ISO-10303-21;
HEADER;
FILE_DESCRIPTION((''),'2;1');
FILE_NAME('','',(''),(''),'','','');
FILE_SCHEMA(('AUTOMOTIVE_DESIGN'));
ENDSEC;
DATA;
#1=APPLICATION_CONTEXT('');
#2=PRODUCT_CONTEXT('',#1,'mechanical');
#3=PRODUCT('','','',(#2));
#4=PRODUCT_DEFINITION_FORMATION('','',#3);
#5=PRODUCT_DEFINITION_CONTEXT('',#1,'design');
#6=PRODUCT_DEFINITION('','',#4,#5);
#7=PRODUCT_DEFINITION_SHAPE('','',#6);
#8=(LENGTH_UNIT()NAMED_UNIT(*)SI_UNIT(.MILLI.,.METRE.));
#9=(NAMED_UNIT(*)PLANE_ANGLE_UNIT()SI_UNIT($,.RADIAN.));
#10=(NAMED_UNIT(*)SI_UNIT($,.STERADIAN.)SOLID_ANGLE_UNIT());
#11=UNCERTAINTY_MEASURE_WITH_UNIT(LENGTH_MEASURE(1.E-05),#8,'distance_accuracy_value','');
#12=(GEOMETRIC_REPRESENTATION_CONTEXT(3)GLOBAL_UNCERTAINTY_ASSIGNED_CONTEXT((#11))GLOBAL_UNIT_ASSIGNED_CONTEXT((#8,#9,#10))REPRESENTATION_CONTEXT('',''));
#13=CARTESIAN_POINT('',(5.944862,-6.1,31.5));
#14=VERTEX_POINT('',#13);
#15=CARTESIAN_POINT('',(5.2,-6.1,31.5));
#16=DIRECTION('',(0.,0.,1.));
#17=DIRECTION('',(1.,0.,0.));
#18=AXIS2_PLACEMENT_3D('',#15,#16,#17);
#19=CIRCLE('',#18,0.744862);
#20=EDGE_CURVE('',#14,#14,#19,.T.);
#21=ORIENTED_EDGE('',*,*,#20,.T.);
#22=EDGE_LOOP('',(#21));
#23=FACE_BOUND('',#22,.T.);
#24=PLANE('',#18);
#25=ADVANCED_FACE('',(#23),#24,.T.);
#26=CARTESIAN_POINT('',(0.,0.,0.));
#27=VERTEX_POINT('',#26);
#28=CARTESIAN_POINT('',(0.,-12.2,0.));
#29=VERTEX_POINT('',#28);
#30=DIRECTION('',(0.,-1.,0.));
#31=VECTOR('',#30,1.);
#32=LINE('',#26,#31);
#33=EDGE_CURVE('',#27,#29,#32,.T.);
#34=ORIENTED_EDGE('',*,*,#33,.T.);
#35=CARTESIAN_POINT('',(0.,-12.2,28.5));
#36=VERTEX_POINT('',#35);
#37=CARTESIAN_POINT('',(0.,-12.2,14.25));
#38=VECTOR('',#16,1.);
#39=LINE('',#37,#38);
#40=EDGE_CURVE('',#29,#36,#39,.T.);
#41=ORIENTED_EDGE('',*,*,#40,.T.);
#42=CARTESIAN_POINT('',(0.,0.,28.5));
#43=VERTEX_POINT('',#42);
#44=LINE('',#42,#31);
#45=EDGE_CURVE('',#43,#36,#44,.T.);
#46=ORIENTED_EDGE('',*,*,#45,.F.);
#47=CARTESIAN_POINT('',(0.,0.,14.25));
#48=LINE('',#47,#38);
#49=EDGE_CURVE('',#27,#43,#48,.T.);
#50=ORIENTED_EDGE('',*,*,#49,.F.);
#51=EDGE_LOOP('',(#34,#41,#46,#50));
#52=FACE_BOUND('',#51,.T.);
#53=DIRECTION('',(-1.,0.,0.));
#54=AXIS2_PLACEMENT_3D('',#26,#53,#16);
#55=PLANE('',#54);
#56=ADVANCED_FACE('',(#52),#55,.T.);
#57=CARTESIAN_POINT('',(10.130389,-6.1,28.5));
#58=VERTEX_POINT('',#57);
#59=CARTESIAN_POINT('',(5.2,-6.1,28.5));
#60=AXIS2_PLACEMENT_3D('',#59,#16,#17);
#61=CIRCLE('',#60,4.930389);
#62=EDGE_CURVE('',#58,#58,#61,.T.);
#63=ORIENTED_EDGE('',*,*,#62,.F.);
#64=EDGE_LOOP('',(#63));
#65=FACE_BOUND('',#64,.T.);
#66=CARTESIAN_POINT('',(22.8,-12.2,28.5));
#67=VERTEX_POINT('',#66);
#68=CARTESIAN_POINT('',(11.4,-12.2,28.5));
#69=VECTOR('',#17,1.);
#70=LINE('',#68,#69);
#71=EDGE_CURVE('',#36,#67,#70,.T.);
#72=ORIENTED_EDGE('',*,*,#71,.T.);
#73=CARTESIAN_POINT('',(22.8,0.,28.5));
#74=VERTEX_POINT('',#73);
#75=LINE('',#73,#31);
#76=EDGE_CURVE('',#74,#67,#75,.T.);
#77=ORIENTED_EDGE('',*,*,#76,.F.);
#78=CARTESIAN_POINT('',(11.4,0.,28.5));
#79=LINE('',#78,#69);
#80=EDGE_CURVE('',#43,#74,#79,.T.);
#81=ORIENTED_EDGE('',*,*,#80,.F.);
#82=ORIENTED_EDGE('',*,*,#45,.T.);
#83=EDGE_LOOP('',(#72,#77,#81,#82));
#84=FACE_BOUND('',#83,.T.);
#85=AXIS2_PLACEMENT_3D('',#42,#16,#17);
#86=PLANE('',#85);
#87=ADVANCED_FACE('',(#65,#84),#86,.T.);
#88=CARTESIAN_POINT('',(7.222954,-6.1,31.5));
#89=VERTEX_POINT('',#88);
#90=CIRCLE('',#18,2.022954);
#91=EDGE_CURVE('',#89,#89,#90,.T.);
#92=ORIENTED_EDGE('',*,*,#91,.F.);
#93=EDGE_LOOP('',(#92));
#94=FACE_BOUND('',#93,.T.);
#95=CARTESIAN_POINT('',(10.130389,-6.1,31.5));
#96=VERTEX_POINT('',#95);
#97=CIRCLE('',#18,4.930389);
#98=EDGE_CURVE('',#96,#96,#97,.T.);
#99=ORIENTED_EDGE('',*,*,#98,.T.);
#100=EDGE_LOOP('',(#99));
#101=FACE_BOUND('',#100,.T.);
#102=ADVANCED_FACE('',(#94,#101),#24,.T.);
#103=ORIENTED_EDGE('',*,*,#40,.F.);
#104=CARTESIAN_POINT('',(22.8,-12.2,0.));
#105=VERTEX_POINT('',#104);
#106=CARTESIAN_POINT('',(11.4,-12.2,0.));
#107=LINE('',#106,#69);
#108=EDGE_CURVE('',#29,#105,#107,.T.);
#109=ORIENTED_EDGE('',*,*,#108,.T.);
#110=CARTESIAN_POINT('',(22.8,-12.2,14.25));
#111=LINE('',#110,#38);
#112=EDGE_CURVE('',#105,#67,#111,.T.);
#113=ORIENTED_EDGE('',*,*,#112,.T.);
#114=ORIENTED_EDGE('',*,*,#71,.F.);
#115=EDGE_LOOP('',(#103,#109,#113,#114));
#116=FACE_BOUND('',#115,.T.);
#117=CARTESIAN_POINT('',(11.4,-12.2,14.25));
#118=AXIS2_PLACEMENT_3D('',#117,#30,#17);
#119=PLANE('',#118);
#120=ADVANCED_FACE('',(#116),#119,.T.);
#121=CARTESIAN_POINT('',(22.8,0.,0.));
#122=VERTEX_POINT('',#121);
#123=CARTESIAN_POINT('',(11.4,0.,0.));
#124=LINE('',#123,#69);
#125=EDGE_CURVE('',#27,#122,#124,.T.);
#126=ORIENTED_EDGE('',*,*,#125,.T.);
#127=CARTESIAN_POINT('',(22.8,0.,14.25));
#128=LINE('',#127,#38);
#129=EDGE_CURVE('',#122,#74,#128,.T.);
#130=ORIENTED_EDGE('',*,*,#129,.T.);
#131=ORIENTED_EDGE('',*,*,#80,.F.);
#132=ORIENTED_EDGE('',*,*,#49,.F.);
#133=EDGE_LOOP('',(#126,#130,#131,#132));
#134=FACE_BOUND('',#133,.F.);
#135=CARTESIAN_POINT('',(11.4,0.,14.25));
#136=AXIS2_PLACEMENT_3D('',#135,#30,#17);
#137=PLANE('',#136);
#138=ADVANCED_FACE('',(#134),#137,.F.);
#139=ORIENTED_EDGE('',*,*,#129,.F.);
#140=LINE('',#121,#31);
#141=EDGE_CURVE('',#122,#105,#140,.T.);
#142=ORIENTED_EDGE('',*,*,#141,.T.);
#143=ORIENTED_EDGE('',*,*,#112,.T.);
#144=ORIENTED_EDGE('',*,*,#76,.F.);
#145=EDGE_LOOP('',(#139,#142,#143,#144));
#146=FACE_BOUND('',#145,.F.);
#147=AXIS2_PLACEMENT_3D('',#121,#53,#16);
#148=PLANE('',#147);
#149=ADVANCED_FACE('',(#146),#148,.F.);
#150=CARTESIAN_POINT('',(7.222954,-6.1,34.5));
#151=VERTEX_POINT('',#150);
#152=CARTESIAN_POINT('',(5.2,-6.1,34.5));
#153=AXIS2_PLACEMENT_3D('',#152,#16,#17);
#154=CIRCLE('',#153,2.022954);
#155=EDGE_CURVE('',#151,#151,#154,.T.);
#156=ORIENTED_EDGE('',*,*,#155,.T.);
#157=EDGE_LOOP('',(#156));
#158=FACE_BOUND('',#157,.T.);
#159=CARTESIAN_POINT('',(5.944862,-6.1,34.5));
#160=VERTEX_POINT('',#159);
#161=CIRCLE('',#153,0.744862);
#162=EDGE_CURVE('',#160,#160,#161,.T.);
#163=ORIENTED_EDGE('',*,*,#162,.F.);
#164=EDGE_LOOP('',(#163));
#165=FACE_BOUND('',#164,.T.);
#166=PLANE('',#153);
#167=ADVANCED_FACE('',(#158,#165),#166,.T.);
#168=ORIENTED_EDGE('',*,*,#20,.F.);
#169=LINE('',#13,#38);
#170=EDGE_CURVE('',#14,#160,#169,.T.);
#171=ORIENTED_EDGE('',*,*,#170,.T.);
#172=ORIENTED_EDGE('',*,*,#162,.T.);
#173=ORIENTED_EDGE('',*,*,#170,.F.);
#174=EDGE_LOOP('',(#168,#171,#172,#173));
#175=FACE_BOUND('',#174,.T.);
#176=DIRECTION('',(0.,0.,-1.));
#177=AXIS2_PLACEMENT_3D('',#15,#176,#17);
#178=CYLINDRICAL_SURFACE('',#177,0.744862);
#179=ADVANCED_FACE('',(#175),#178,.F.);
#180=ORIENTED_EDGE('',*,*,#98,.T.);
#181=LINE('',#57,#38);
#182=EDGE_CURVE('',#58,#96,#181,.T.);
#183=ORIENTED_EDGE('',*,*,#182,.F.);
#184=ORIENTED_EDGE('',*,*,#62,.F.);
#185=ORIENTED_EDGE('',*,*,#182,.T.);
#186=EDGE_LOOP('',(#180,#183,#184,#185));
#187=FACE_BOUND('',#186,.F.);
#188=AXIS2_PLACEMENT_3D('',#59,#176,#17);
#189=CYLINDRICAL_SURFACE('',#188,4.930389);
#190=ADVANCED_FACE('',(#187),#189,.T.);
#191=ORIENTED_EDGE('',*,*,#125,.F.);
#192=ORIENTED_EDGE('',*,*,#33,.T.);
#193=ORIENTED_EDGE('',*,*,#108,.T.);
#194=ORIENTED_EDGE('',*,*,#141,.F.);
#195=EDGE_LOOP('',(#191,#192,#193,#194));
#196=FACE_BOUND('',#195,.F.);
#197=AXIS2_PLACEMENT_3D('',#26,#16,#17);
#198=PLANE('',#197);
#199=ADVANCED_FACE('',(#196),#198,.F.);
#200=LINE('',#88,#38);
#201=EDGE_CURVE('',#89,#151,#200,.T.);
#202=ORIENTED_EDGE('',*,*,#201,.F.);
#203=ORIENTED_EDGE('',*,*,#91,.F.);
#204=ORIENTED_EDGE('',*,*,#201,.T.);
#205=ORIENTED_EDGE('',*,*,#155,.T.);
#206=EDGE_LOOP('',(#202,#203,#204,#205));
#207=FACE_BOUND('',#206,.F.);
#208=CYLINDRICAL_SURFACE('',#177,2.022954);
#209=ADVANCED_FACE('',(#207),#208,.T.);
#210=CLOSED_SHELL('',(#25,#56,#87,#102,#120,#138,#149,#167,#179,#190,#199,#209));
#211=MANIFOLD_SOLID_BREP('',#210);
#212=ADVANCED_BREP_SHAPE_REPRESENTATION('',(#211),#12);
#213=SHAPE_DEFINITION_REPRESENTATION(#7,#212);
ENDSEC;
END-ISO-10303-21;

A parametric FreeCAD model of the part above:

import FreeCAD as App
import Part
import Sketcher
Q = App.Units.Quantity


def add_polygon(sketch, points):
    """Adds a closed chain of lines whose ends are joined by coincident constraints."""
    first, n = sketch.GeometryCount, len(points)
    for a, b in zip(points, points[1:] + points[:1]):
        sketch.addGeometry(Part.LineSegment(App.Vector(*a, 0), App.Vector(*b, 0)), False)
    for i in range(n):
        sketch.addConstraint(Sketcher.Constraint("Coincident", first + i, 2, first + (i + 1) % n, 1))

doc = App.newDocument("Part")
body = doc.addObject("PartDesign::Body", "Body")

sketch1 = body.newObject("Sketcher::SketchObject", "Sketch")
sketch1.AttachmentSupport = (doc.getObject("XZ_Plane"), [""])
sketch1.MapMode = "FlatFace"
add_polygon(sketch1, [(0, 28.5), (0, 0), (22.8, 0), (22.8, 28.5)])
sketch1.addConstraint(Sketcher.Constraint("Vertical", 0))
sketch1.addConstraint(Sketcher.Constraint("Horizontal", 1))
sketch1.addConstraint(Sketcher.Constraint("Vertical", 2))
sketch1.addConstraint(Sketcher.Constraint("Horizontal", 3))
sketch1.addConstraint(Sketcher.Constraint("Coincident", 0, 2, -1, 1))
sketch1.addConstraint(Sketcher.Constraint("DistanceX", 1, 1, 1, 2, Q("22.8 mm")))
sketch1.addConstraint(Sketcher.Constraint("DistanceY", 0, 2, 0, 1, Q("28.5 mm")))
pad1 = body.newObject("PartDesign::Pad", "Pad")
pad1.Profile = sketch1
pad1.Length = 12.2

sketch2 = body.newObject("Sketcher::SketchObject", "Sketch001")
sketch2.AttachmentSupport = (doc.getObject("XY_Plane"), [""])
sketch2.MapMode = "FlatFace"
sketch2.AttachmentOffset = App.Placement(App.Vector(0, 0, 28.5), App.Rotation())
sketch2.addGeometry(Part.Circle(App.Vector(5.2, -6.1, 0), App.Vector(0, 0, 1), 4.930389), False)
sketch2.addConstraint(Sketcher.Constraint("DistanceX", -1, 1, 0, 3, Q("5.2 mm")))
sketch2.addConstraint(Sketcher.Constraint("DistanceY", 0, 3, -1, 1, Q("6.1 mm")))
sketch2.addConstraint(Sketcher.Constraint("Diameter", 0, Q("9.860778 mm")))
pad2 = body.newObject("PartDesign::Pad", "Pad001")
pad2.Profile = sketch2
pad2.Length = 3

sketch3 = body.newObject("Sketcher::SketchObject", "Sketch002")
sketch3.AttachmentSupport = (doc.getObject("XY_Plane"), [""])
sketch3.MapMode = "FlatFace"
sketch3.AttachmentOffset = App.Placement(App.Vector(0, 0, 31.5), App.Rotation())
sketch3.addGeometry(Part.Circle(App.Vector(5.2, -6.1, 0), App.Vector(0, 0, 1), 2.022954), False)
sketch3.addGeometry(Part.Circle(App.Vector(5.2, -6.1, 0), App.Vector(0, 0, 1), 0.744862), False)
sketch3.addConstraint(Sketcher.Constraint("Coincident", 1, 3, 0, 3))
sketch3.addConstraint(Sketcher.Constraint("DistanceX", -1, 1, 0, 3, Q("5.2 mm")))
sketch3.addConstraint(Sketcher.Constraint("DistanceY", 0, 3, -1, 1, Q("6.1 mm")))
sketch3.addConstraint(Sketcher.Constraint("Diameter", 0, Q("4.045908 mm")))
sketch3.addConstraint(Sketcher.Constraint("Diameter", 1, Q("1.489724 mm")))
pad3 = body.newObject("PartDesign::Pad", "Pad002")
pad3.Profile = sketch3
pad3.Length = 3

doc.recompute()
